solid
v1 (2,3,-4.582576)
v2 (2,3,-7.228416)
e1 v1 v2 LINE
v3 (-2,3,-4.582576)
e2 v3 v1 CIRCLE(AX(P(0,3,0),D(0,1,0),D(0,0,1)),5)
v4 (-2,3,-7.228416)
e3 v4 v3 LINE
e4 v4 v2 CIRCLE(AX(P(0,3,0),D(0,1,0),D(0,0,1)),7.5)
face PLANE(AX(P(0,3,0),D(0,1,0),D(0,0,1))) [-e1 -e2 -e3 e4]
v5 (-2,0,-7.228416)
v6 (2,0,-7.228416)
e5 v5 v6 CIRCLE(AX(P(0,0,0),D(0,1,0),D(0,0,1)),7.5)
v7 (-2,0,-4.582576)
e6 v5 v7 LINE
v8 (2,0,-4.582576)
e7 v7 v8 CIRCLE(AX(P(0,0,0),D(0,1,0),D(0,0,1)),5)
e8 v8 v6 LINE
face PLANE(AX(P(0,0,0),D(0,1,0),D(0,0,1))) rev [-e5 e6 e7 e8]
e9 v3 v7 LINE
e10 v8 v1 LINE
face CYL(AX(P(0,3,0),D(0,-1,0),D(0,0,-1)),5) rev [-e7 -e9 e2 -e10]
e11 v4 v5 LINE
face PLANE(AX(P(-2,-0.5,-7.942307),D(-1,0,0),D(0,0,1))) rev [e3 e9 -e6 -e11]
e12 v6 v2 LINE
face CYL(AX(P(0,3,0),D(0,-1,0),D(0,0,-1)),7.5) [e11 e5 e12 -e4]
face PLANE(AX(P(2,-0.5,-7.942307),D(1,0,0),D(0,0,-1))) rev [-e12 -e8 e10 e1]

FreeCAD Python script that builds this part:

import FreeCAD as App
import Part
import Sketcher
Q = App.Units.Quantity


def add_polygon(sketch, points):
    """Adds a closed chain of lines whose ends are joined by coincident constraints."""
    first, n = sketch.GeometryCount, len(points)
    for a, b in zip(points, points[1:] + points[:1]):
        sketch.addGeometry(Part.LineSegment(App.Vector(*a, 0), App.Vector(*b, 0)), False)
    for i in range(n):
        sketch.addConstraint(Sketcher.Constraint("Coincident", first + i, 2, first + (i + 1) % n, 1))

doc = App.newDocument("Part")
params = doc.addObject("Spreadsheet::Sheet", "Params")
for row, (alias, value) in enumerate([
    ("sketch1_diameter", "15 mm"),
    ("sketch1_diameter2", "10 mm"),
    ("pad1_length", "3 mm"),
    ("sketch2_width", "4 mm"),
    ("pocket1_length", "3.5 mm"),
], start=1):
    params.set(f"A{row}", alias)
    params.set(f"B{row}", "=" + value)
    params.setAlias(f"B{row}", alias)

body = doc.addObject("PartDesign::Body", "Body")

sketch1 = doc.addObject("Sketcher::SketchObject", "Sketch")
body.addObject(sketch1)
sketch1.AttachmentSupport = (doc.XZ_Plane, [""])
sketch1.MapMode = "FlatFace"
sketch1.addGeometry([
    Part.Circle(App.Vector(0, 0, 0), App.Vector(0, 0, 1), 8),
    Part.Circle(App.Vector(0, 0, 0), App.Vector(0, 0, 1), 5),
], False)
sketch1.addConstraint([
    Sketcher.Constraint("Coincident", 0, 3, -1, 1),
    Sketcher.Constraint("Coincident", 1, 3, -1, 1),
    Sketcher.Constraint("Diameter", 0, Q("15 mm")),
    Sketcher.Constraint("Diameter", 1, Q("10 mm")),
])
sketch1.setExpression("Constraints[2]", "Params.sketch1_diameter")
sketch1.setExpression("Constraints[3]", "Params.sketch1_diameter2")
pad1 = doc.addObject("PartDesign::Pad", "Pad")
body.addObject(pad1)
pad1.Profile = sketch1
pad1.setExpression("Length", "Params.pad1_length")
pad1.Reversed = True

sketch2 = doc.addObject("Sketcher::SketchObject", "Sketch001")
body.addObject(sketch2)
sketch2.AttachmentSupport = (doc.XZ_Plane, [""])
sketch2.MapMode = "FlatFace"
sketch2.AttachmentOffset = App.Placement(App.Vector(0, 0, -3), App.Rotation())
add_polygon(sketch2, [(-2, -7.9), (-2, -3.9), (2, -3.9), (2, -7.9)])
sketch2.addConstraint([
    Sketcher.Constraint("Vertical", 0),
    Sketcher.Constraint("Horizontal", 1),
    Sketcher.Constraint("Vertical", 2),
    Sketcher.Constraint("Horizontal", 3),
    Sketcher.Constraint("Equal", 3, 0),
    Sketcher.Constraint("DistanceX", 1, 1, 1, 2, Q("4 mm")),
    Sketcher.Constraint("DistanceX", 0, 2, -1, 1, Q("2 mm")),
    Sketcher.Constraint("DistanceY", 0, 2, -1, 1, Q("3.942307 mm")),
])
sketch2.setExpression("Constraints[9]", "Params.sketch2_width")
pocket1 = doc.addObject("PartDesign::Pocket", "Pocket")
body.addObject(pocket1)
pocket1.Profile = sketch2
pocket1.setExpression("Length", "Params.pocket1_length")
pocket1.Reversed = True

doc.recompute()
